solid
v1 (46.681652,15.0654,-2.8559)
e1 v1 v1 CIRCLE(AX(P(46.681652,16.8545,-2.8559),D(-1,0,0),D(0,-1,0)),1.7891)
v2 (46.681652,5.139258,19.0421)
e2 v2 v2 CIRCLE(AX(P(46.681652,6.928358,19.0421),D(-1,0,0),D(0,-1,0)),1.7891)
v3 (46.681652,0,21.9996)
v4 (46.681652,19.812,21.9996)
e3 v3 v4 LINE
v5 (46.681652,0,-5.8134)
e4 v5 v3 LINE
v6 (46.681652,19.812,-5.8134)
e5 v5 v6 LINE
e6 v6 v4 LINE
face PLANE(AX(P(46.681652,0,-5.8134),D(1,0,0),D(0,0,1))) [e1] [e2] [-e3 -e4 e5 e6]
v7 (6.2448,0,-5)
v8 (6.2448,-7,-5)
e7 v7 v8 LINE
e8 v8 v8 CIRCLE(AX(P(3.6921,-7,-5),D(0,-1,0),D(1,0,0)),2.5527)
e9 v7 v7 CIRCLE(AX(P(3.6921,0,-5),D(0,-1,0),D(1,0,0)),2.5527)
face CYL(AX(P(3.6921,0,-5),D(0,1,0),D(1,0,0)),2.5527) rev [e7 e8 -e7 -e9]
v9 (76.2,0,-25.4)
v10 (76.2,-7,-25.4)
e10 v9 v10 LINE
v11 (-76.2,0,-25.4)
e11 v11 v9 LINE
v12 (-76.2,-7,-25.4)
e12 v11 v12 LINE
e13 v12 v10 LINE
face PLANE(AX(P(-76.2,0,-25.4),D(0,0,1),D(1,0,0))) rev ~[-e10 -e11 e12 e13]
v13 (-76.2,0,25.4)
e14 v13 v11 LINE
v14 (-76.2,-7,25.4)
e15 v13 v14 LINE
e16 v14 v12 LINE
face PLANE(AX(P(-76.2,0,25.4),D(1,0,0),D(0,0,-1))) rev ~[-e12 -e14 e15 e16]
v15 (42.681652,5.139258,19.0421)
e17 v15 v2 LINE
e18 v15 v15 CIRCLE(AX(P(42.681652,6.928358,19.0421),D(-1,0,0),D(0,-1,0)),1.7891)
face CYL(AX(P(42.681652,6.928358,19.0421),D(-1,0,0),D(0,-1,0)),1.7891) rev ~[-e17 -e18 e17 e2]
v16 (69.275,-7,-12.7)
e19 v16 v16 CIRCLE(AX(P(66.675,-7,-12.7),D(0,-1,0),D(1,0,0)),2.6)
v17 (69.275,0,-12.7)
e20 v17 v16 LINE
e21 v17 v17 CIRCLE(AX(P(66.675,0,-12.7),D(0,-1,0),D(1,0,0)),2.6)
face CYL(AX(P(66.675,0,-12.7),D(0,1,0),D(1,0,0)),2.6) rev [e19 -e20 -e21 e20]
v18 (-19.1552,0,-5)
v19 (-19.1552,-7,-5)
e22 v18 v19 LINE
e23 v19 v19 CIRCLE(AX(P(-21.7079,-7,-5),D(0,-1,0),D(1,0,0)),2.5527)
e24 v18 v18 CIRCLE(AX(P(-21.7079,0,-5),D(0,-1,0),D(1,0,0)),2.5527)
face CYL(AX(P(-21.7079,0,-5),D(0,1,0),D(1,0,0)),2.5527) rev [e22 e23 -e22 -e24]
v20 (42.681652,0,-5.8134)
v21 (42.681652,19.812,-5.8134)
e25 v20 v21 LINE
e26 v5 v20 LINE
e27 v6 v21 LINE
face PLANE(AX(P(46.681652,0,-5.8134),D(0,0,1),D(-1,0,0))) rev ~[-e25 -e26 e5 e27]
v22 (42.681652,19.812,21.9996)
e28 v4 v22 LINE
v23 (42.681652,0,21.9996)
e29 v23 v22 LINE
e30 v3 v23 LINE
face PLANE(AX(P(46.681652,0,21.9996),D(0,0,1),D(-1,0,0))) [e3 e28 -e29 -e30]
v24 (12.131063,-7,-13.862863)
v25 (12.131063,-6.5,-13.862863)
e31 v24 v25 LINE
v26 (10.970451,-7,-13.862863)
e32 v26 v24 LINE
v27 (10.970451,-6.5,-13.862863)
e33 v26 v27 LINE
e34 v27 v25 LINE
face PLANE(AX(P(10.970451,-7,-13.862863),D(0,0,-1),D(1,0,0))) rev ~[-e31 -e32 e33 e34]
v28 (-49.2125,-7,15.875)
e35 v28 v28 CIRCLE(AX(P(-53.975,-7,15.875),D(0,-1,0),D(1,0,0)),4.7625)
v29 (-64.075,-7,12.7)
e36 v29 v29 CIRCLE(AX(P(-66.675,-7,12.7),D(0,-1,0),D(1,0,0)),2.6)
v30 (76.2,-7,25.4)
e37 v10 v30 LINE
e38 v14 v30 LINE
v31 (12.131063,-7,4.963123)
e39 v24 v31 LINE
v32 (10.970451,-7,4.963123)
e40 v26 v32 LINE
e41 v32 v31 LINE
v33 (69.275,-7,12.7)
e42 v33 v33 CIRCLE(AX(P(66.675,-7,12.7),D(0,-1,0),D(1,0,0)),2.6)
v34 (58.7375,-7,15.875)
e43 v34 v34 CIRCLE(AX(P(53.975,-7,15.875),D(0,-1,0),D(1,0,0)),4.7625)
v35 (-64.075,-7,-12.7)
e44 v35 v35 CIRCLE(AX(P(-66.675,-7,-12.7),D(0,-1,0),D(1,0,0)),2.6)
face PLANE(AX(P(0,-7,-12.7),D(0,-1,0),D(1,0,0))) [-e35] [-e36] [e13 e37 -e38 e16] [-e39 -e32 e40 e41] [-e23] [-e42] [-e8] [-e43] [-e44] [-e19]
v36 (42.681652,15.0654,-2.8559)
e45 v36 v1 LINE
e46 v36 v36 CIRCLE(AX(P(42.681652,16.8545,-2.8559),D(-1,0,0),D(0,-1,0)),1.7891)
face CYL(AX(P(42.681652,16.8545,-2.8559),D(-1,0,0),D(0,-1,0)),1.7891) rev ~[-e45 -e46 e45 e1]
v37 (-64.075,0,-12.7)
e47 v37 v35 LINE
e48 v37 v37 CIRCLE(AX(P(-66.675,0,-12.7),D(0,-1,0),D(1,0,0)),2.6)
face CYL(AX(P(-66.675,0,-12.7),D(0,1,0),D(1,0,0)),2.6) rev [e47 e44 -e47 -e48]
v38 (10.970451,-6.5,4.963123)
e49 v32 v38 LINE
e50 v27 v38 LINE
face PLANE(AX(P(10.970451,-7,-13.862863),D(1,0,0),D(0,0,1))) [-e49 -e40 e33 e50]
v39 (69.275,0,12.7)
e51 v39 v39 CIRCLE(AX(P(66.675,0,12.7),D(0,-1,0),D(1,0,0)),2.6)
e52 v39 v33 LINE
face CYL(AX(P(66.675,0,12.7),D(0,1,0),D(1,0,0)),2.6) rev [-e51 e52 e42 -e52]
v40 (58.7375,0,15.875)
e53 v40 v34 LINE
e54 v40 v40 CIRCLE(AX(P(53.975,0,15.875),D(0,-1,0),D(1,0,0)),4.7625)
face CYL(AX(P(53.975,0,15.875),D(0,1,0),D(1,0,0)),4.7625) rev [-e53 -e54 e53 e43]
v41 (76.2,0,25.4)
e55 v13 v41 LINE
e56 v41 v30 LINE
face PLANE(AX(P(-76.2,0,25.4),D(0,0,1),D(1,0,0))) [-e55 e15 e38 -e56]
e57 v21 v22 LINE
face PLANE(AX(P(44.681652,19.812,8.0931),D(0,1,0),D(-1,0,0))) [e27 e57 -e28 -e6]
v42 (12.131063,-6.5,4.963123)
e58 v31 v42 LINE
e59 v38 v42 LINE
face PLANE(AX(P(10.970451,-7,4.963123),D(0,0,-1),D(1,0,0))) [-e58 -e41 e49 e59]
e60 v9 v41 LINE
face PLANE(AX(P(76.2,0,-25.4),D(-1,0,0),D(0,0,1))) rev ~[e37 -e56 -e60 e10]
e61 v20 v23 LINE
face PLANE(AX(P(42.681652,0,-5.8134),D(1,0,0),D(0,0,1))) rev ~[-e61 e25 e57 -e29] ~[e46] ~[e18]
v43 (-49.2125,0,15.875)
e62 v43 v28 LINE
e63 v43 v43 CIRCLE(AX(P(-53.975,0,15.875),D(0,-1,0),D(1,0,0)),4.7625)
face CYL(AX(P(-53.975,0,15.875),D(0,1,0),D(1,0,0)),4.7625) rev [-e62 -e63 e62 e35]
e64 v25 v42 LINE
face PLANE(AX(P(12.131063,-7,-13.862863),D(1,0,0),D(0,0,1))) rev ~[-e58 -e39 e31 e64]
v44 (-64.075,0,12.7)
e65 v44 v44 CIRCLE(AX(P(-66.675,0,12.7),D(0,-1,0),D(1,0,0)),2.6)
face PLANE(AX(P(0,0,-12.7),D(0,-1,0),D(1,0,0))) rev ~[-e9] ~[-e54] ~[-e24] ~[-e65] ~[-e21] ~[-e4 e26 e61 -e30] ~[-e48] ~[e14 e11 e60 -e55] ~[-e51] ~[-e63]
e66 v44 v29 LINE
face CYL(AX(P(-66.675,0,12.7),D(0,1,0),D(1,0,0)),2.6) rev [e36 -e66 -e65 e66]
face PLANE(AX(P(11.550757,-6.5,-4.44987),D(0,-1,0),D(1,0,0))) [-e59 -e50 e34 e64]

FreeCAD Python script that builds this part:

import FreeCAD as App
import Part
import Sketcher
from FreeCAD import Vector
Q = App.Units.Quantity

doc = App.newDocument("Part")
params = doc.addObject("Spreadsheet::Sheet", "Params")
for row, (alias, value) in enumerate([
    ("sketch1_width", "6 in"),
    ("sketch1_height", "2 in"),
    ("sketch1_diameter", "0.201 in"),
    ("sketch1_diameter2", "0.375 in"),
    ("pad1_length", "7 mm"),
    ("sketch2_width", "6 in"),
    ("sketch2_height", "2 in"),
    ("sketch2_diameter", "0.201 in"),
    ("sketch2_diameter2", "0.375 in"),
    ("pocket1_length", "0.2 mm"),
    ("pocket2_length", "0.5 mm"),
    ("sketch4_height", "1.095 in"),
    ("pad2_length", "0.78 in"),
], start=1):
    params.set(f"A{row}", alias)
    params.set(f"B{row}", "=" + value)
    params.setAlias(f"B{row}", alias)

body = doc.addObject("PartDesign::Body", "Body")

# Sketch on XZ plane
sketch1 = body.newObject("Sketcher::SketchObject", "Sketch")
sketch1.AttachmentSupport = (doc.getObject("XZ_Plane"), [""])
sketch1.MapMode = "FlatFace"
sketch1.addGeometry(Part.LineSegment(Vector(-76.2, -25.4, 0), Vector(76.2, -25.4, 0)), False)
sketch1.addGeometry(Part.LineSegment(Vector(76.2, -25.4, 0), Vector(76.2, 25.4, 0)), False)
sketch1.addGeometry(Part.LineSegment(Vector(76.2, 25.4, 0), Vector(-76.2, 25.4, 0)), False)
sketch1.addGeometry(Part.LineSegment(Vector(-76.2, 25.4, 0), Vector(-76.2, -25.4, 0)), False)
sketch1.addGeometry(Part.Circle(Vector(-66.7, -12.7, 0), Vector(0, 0, 1), 2.6), False)
sketch1.addGeometry(Part.Circle(Vector(-21.7, -5, 0), Vector(0, 0, 1), 2.6), False)
sketch1.addGeometry(Part.Circle(Vector(66.7, -12.7, 0), Vector(0, 0, 1), 2.6), False)
sketch1.addGeometry(Part.Circle(Vector(3.7, -5, 0), Vector(0, 0, 1), 2.6), False)
sketch1.addGeometry(Part.Circle(Vector(-66.7, 12.7, 0), Vector(0, 0, 1), 2.6), False)
sketch1.addGeometry(Part.Circle(Vector(-54, 15.9, 0), Vector(0, 0, 1), 4.8), False)
sketch1.addGeometry(Part.Circle(Vector(66.7, 12.7, 0), Vector(0, 0, 1), 2.6), False)
sketch1.addGeometry(Part.Circle(Vector(54, 15.9, 0), Vector(0, 0, 1), 4.8), False)
sketch1.addConstraint(Sketcher.Constraint("Coincident", 0, 2, 1, 1))
sketch1.addConstraint(Sketcher.Constraint("Coincident", 1, 2, 2, 1))
sketch1.addConstraint(Sketcher.Constraint("Coincident", 2, 2, 3, 1))
sketch1.addConstraint(Sketcher.Constraint("Coincident", 3, 2, 0, 1))
sketch1.addConstraint(Sketcher.Constraint("Horizontal", 0))
sketch1.addConstraint(Sketcher.Constraint("Vertical", 1))
sketch1.addConstraint(Sketcher.Constraint("Horizontal", 2))
sketch1.addConstraint(Sketcher.Constraint("Vertical", 3))
sketch1.addConstraint(Sketcher.Constraint("Equal", 4, 6))
sketch1.addConstraint(Sketcher.Constraint("Equal", 5, 7))
sketch1.addConstraint(Sketcher.Constraint("Equal", 6, 8))
sketch1.addConstraint(Sketcher.Constraint("Equal", 8, 10))
sketch1.addConstraint(Sketcher.Constraint("Equal", 9, 11))
sketch1.addConstraint(Sketcher.Constraint("Symmetric", 6, 3, 8, 3, -1, 1))
sketch1.addConstraint(Sketcher.Constraint("Symmetric", 4, 3, 10, 3, -1, 1))
sketch1.addConstraint(Sketcher.Constraint("Symmetric", 0, 2, 2, 2, -1, 1))
sketch1.addConstraint(Sketcher.Constraint("Symmetric", 4, 3, 6, 3, -2))
sketch1.addConstraint(Sketcher.Constraint("Symmetric", 9, 3, 11, 3, -2))
sketch1.addConstraint(Sketcher.Constraint("Horizontal", 5, 3, 7, 3))
sketch1.addConstraint(Sketcher.Constraint("DistanceX", 0, 1, 0, 2, Q("6 in")))
sketch1.addConstraint(Sketcher.Constraint("DistanceY", 1, 1, 1, 2, Q("2 in")))
sketch1.addConstraint(Sketcher.Constraint("Diameter", 5, Q("0.201 in")))
sketch1.addConstraint(Sketcher.Constraint("Diameter", 9, Q("0.375 in")))
sketch1.addConstraint(Sketcher.Constraint("DistanceX", 5, 3, 7, 3, Q("1 in")))
sketch1.addConstraint(Sketcher.Constraint("DistanceY", 4, 3, 8, 3, Q("1 in")))
sketch1.addConstraint(Sketcher.Constraint("DistanceX", 8, 3, 9, 3, Q("0.5 in")))
sketch1.addConstraint(Sketcher.Constraint("Diameter", 4, Q("5.2 mm")))
sketch1.addConstraint(Sketcher.Constraint("DistanceX", 4, 3, 6, 3, Q("5.25 in")))
sketch1.addConstraint(Sketcher.Constraint("DistanceY", -1, 1, 9, 3, Q("0.625 in")))
sketch1.addConstraint(Sketcher.Constraint("DistanceX", 5, 3, -1, 1, Q("21.7079 mm")))
sketch1.addConstraint(Sketcher.Constraint("DistanceY", 5, 3, -1, 1, Q("5 mm")))
sketch1.setExpression("Constraints[19]", "Params.sketch1_width")
sketch1.setExpression("Constraints[20]", "Params.sketch1_height")
sketch1.setExpression("Constraints[21]", "Params.sketch1_diameter")
sketch1.setExpression("Constraints[22]", "Params.sketch1_diameter2")
pad1 = body.newObject("PartDesign::Pad", "Pad")
pad1.Profile = sketch1
pad1.setExpression("Length", "Params.pad1_length")

# Sketch on XZ plane
sketch2 = body.newObject("Sketcher::SketchObject", "Sketch001")
sketch2.AttachmentSupport = (doc.getObject("XZ_Plane"), [""])
sketch2.MapMode = "FlatFace"
sketch2.addGeometry(Part.LineSegment(Vector(-76.2, -25.4, 0), Vector(76.2, -25.4, 0)), False)
sketch2.addGeometry(Part.LineSegment(Vector(76.2, -25.4, 0), Vector(76.2, 25.4, 0)), False)
sketch2.addGeometry(Part.LineSegment(Vector(76.2, 25.4, 0), Vector(-76.2, 25.4, 0)), False)
sketch2.addGeometry(Part.LineSegment(Vector(-76.2, 25.4, 0), Vector(-76.2, -25.4, 0)), False)
sketch2.addGeometry(Part.Circle(Vector(-66.7, -12.7, 0), Vector(0, 0, 1), 2.6), False)
sketch2.addGeometry(Part.Circle(Vector(-21.7, -5, 0), Vector(0, 0, 1), 2.6), False)
sketch2.addGeometry(Part.Circle(Vector(66.7, -12.7, 0), Vector(0, 0, 1), 2.6), False)
sketch2.addGeometry(Part.Circle(Vector(3.7, -5, 0), Vector(0, 0, 1), 2.6), False)
sketch2.addGeometry(Part.Circle(Vector(-66.7, 12.7, 0), Vector(0, 0, 1), 2.6), False)
sketch2.addGeometry(Part.Circle(Vector(-54, 15.9, 0), Vector(0, 0, 1), 4.8), False)
sketch2.addGeometry(Part.Circle(Vector(66.7, 12.7, 0), Vector(0, 0, 1), 2.6), False)
sketch2.addGeometry(Part.Circle(Vector(54, 15.9, 0), Vector(0, 0, 1), 4.8), False)
sketch2.addConstraint(Sketcher.Constraint("Coincident", 0, 2, 1, 1))
sketch2.addConstraint(Sketcher.Constraint("Coincident", 1, 2, 2, 1))
sketch2.addConstraint(Sketcher.Constraint("Coincident", 2, 2, 3, 1))
sketch2.addConstraint(Sketcher.Constraint("Coincident", 3, 2, 0, 1))
sketch2.addConstraint(Sketcher.Constraint("Horizontal", 0))
sketch2.addConstraint(Sketcher.Constraint("Vertical", 1))
sketch2.addConstraint(Sketcher.Constraint("Horizontal", 2))
sketch2.addConstraint(Sketcher.Constraint("Vertical", 3))
sketch2.addConstraint(Sketcher.Constraint("Equal", 4, 6))
sketch2.addConstraint(Sketcher.Constraint("Equal", 5, 7))
sketch2.addConstraint(Sketcher.Constraint("Equal", 6, 8))
sketch2.addConstraint(Sketcher.Constraint("Equal", 8, 10))
sketch2.addConstraint(Sketcher.Constraint("Equal", 9, 11))
sketch2.addConstraint(Sketcher.Constraint("Symmetric", 6, 3, 8, 3, -1, 1))
sketch2.addConstraint(Sketcher.Constraint("Symmetric", 4, 3, 10, 3, -1, 1))
sketch2.addConstraint(Sketcher.Constraint("Symmetric", 0, 2, 2, 2, -1, 1))
sketch2.addConstraint(Sketcher.Constraint("Symmetric", 4, 3, 6, 3, -2))
sketch2.addConstraint(Sketcher.Constraint("Symmetric", 9, 3, 11, 3, -2))
sketch2.addConstraint(Sketcher.Constraint("Horizontal", 5, 3, 7, 3))
sketch2.addConstraint(Sketcher.Constraint("DistanceX", 0, 1, 0, 2, Q("6 in")))
sketch2.addConstraint(Sketcher.Constraint("DistanceY", 1, 1, 1, 2, Q("2 in")))
sketch2.addConstraint(Sketcher.Constraint("Diameter", 5, Q("0.201 in")))
sketch2.addConstraint(Sketcher.Constraint("Diameter", 9, Q("0.375 in")))
sketch2.addConstraint(Sketcher.Constraint("DistanceX", 5, 3, 7, 3, Q("1 in")))
sketch2.addConstraint(Sketcher.Constraint("DistanceY", 4, 3, 8, 3, Q("1 in")))
sketch2.addConstraint(Sketcher.Constraint("DistanceX", 8, 3, 9, 3, Q("0.5 in")))
sketch2.addConstraint(Sketcher.Constraint("Diameter", 4, Q("5.2 mm")))
sketch2.addConstraint(Sketcher.Constraint("DistanceX", 4, 3, 6, 3, Q("5.25 in")))
sketch2.addConstraint(Sketcher.Constraint("DistanceY", -1, 1, 9, 3, Q("0.625 in")))
sketch2.addConstraint(Sketcher.Constraint("DistanceX", 5, 3, -1, 1, Q("21.7079 mm")))
sketch2.addConstraint(Sketcher.Constraint("DistanceY", 5, 3, -1, 1, Q("5 mm")))
sketch2.setExpression("Constraints[19]", "Params.sketch2_width")
sketch2.setExpression("Constraints[20]", "Params.sketch2_height")
sketch2.setExpression("Constraints[21]", "Params.sketch2_diameter")
sketch2.setExpression("Constraints[22]", "Params.sketch2_diameter2")
pocket1 = body.newObject("PartDesign::Pocket", "Pocket")
pocket1.Profile = sketch2
pocket1.setExpression("Length", "Params.pocket1_length")

# Sketch on XZ plane
sketch3 = body.newObject("Sketcher::SketchObject", "Sketch002")
sketch3.AttachmentSupport = (doc.getObject("XZ_Plane"), [""])
sketch3.MapMode = "FlatFace"
sketch3.AttachmentOffset = App.Placement(Vector(0, 0, 7), App.Rotation())
sketch3.addGeometry(Part.LineSegment(Vector(11, 5, 0), Vector(11, -13.9, 0)), False)
sketch3.addGeometry(Part.LineSegment(Vector(11, -13.9, 0), Vector(12.1, -13.9, 0)), False)
sketch3.addGeometry(Part.LineSegment(Vector(12.1, -13.9, 0), Vector(12.1, 5, 0)), False)
sketch3.addGeometry(Part.LineSegment(Vector(12.1, 5, 0), Vector(11, 5, 0)), False)
sketch3.addConstraint(Sketcher.Constraint("Coincident", 0, 2, 1, 1))
sketch3.addConstraint(Sketcher.Constraint("Coincident", 1, 2, 2, 1))
sketch3.addConstraint(Sketcher.Constraint("Coincident", 2, 2, 3, 1))
sketch3.addConstraint(Sketcher.Constraint("Coincident", 3, 2, 0, 1))
sketch3.addConstraint(Sketcher.Constraint("Vertical", 0))
sketch3.addConstraint(Sketcher.Constraint("Horizontal", 1))
sketch3.addConstraint(Sketcher.Constraint("Vertical", 2))
sketch3.addConstraint(Sketcher.Constraint("Horizontal", 3))
sketch3.addConstraint(Sketcher.Constraint("DistanceX", 1, 1, 1, 2, Q("1.160611 mm")))
sketch3.addConstraint(Sketcher.Constraint("DistanceY", 0, 2, 0, 1, Q("18.825986 mm")))
sketch3.addConstraint(Sketcher.Constraint("DistanceX", -1, 1, 0, 2, Q("10.970451 mm")))
sketch3.addConstraint(Sketcher.Constraint("DistanceY", 0, 2, -1, 1, Q("13.862863 mm")))
pocket2 = body.newObject("PartDesign::Pocket", "Pocket001")
pocket2.Profile = sketch3
pocket2.setExpression("Length", "Params.pocket2_length")

# Sketch on XZ plane
sketch4 = body.newObject("Sketcher::SketchObject", "Sketch003")
sketch4.AttachmentSupport = (doc.getObject("XZ_Plane"), [""])
sketch4.MapMode = "FlatFace"
sketch4.addGeometry(Part.LineSegment(Vector(46.7, 22, 0), Vector(46.7, -5.8, 0)), False)
sketch4.addGeometry(Part.LineSegment(Vector(46.7, -5.8, 0), Vector(42.7, -5.8, 0)), False)
sketch4.addGeometry(Part.LineSegment(Vector(42.7, -5.8, 0), Vector(42.7, 22, 0)), False)
sketch4.addGeometry(Part.LineSegment(Vector(42.7, 22, 0), Vector(46.7, 22, 0)), False)
sketch4.addConstraint(Sketcher.Constraint("Coincident", 0, 2, 1, 1))
sketch4.addConstraint(Sketcher.Constraint("Coincident", 1, 2, 2, 1))
sketch4.addConstraint(Sketcher.Constraint("Coincident", 2, 2, 3, 1))
sketch4.addConstraint(Sketcher.Constraint("Coincident", 3, 2, 0, 1))
sketch4.addConstraint(Sketcher.Constraint("Vertical", 0))
sketch4.addConstraint(Sketcher.Constraint("Horizontal", 1))
sketch4.addConstraint(Sketcher.Constraint("Vertical", 2))
sketch4.addConstraint(Sketcher.Constraint("Horizontal", 3))
sketch4.addConstraint(Sketcher.Constraint("DistanceY", 0, 2, 0, 1, Q("1.095 in")))
sketch4.addConstraint(Sketcher.Constraint("DistanceX", 1, 2, 1, 1, Q("4 mm")))
sketch4.addConstraint(Sketcher.Constraint("DistanceY", 0, 2, -1, 1, Q("5.8134 mm")))
sketch4.addConstraint(Sketcher.Constraint("DistanceX", -1, 1, 0, 2, Q("46.681652 mm")))
sketch4.setExpression("Constraints[8]", "Params.sketch4_height")
pad2 = body.newObject("PartDesign::Pad", "Pad001")
pad2.Profile = sketch4
pad2.setExpression("Length", "Params.pad2_length")
pad2.Reversed = True

# Sketch on YZ plane
sketch5 = body.newObject("Sketcher::SketchObject", "Sketch004")
sketch5.AttachmentSupport = (doc.getObject("YZ_Plane"), [""])
sketch5.MapMode = "FlatFace"
sketch5.AttachmentOffset = App.Placement(Vector(0, 0, 42.681652), App.Rotation())
sketch5.addGeometry(Part.Circle(Vector(16.9, -2.9, 0), Vector(0, 0, 1), 1.8), False)
sketch5.addGeometry(Part.Circle(Vector(6.9, 19, 0), Vector(0, 0, 1), 1.8), False)
sketch5.addConstraint(Sketcher.Constraint("Equal", 0, 1))
sketch5.addConstraint(Sketcher.Constraint("Diameter", 0, Q("3.5782 mm")))
sketch5.addConstraint(Sketcher.Constraint("DistanceX", -1, 1, 0, 3, Q("16.8545 mm")))
sketch5.addConstraint(Sketcher.Constraint("DistanceY", 0, 3, -1, 1, Q("2.8559 mm")))
sketch5.addConstraint(Sketcher.Constraint("DistanceY", -1, 1, 1, 3, Q("19.0421 mm")))
sketch5.addConstraint(Sketcher.Constraint("DistanceX", -1, 1, 1, 3, Q("6.928358 mm")))
pocket3 = body.newObject("PartDesign::Pocket", "Pocket002")
pocket3.Profile = sketch5
pocket3.Type = "ThroughAll"
pocket3.Reversed = True

doc.recompute()
